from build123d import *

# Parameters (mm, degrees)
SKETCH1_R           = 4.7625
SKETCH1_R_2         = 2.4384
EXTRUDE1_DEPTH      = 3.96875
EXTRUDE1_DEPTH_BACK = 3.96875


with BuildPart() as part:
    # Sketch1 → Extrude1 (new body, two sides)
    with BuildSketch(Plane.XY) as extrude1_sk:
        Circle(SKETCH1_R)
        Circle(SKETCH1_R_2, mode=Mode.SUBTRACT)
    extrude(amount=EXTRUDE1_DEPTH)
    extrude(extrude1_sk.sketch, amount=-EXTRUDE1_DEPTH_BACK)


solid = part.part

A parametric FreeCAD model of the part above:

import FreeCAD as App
import Part
import Sketcher
from FreeCAD import Vector
Q = App.Units.Quantity

doc = App.newDocument("Part")
body = doc.addObject("PartDesign::Body", "Body")

sketch1 = body.newObject("Sketcher::SketchObject", "Sketch")
sketch1.AttachmentSupport = (doc.getObject("XY_Plane"), [""])
sketch1.MapMode = "FlatFace"
sketch1.addGeometry([
    Part.Circle(Vector(0, 0, 0), Vector(0, 0, 1), 4.8),
    Part.Circle(Vector(0, 0, 0), Vector(0, 0, 1), 2.4),
], False)
sketch1.addConstraint([
    Sketcher.Constraint("Coincident", 0, 3, -1, 1),
    Sketcher.Constraint("Coincident", 1, 3, -1, 1),
    Sketcher.Constraint("Diameter", 0, Q("0.375 in")),
    Sketcher.Constraint("Diameter", 1, Q("0.192 in")),
])
pad1 = body.newObject("PartDesign::Pad", "Pad")
pad1.Profile = sketch1
pad1.Type = "TwoLengths"
pad1.Length = Q("0.15625 in")
pad1.Length2 = Q("0.15625 in")

doc.recompute()
